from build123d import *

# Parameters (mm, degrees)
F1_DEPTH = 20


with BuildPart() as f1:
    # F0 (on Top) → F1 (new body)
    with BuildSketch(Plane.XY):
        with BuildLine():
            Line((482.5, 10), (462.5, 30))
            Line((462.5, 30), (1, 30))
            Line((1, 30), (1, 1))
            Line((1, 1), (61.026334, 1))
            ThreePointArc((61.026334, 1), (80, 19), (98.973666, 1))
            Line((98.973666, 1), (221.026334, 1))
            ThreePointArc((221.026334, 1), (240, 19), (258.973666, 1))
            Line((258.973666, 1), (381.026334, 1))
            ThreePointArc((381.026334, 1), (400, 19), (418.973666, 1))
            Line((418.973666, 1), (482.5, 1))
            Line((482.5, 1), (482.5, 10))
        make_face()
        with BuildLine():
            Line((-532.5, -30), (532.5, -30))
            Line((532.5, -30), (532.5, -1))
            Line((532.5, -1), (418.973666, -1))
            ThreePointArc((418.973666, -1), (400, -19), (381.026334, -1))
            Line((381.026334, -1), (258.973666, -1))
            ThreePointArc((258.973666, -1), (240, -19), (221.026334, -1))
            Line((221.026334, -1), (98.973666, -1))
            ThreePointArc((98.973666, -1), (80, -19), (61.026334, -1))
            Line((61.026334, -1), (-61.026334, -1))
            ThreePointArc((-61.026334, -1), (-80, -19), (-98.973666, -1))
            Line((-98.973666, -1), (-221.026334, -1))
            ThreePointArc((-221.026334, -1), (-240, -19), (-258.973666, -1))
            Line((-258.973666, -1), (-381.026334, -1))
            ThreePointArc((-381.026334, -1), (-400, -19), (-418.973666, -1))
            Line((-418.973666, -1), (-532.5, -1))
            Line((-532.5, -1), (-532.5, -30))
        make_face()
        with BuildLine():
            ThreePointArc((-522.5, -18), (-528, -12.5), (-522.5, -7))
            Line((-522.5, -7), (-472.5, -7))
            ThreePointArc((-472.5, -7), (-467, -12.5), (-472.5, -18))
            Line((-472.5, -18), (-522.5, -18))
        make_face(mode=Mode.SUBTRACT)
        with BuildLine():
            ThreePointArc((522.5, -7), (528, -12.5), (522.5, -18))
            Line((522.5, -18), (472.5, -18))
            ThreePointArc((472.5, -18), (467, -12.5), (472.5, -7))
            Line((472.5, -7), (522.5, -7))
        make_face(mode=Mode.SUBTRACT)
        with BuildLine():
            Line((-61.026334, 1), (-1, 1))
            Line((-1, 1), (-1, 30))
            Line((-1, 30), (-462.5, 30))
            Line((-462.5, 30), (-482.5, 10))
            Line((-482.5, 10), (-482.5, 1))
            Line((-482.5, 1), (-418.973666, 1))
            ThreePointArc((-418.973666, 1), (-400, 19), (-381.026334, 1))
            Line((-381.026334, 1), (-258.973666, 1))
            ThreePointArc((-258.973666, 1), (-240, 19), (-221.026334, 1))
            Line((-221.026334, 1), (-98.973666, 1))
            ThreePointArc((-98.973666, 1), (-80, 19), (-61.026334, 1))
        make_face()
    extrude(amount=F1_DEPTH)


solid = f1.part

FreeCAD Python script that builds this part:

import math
import FreeCAD as App
import Part
import Sketcher

V = App.Vector

doc = App.newDocument("Part")
body = doc.addObject("PartDesign::Body", "Body")
body.AllowCompound = True

# Sketch on XY plane
sketch1 = body.newObject("Sketcher::SketchObject", "Sketch")
sketch1.AttachmentSupport = (doc.getObject("XY_Plane"), [""])
sketch1.MapMode = "FlatFace"
sketch1.addGeometry(Part.LineSegment(V(482, 10, 0), V(462, 30, 0)), False)
sketch1.addGeometry(Part.LineSegment(V(462, 30, 0), V(1, 30, 0)), False)
sketch1.addGeometry(Part.LineSegment(V(1, 30, 0), V(1, 1, 0)), False)
sketch1.addGeometry(Part.LineSegment(V(1, 1, 0), V(61, 1, 0)), False)
sketch1.addGeometry(Part.ArcOfCircle(Part.Circle(V(80, 0, 0), V(0, 0, 1), 19), math.radians(3), math.radians(177)), False)
sketch1.addGeometry(Part.LineSegment(V(99, 1, 0), V(221, 1, 0)), False)
sketch1.addGeometry(Part.ArcOfCircle(Part.Circle(V(240, 0, 0), V(0, 0, 1), 19), math.radians(3), math.radians(177)), False)
sketch1.addGeometry(Part.LineSegment(V(259, 1, 0), V(381, 1, 0)), False)
sketch1.addGeometry(Part.ArcOfCircle(Part.Circle(V(400, 0, 0), V(0, 0, 1), 19), math.radians(3), math.radians(177)), False)
sketch1.addGeometry(Part.LineSegment(V(419, 1, 0), V(482, 1, 0)), False)
sketch1.addGeometry(Part.LineSegment(V(482, 1, 0), V(482, 10, 0)), False)
sketch1.addGeometry(Part.LineSegment(V(-532, -30, 0), V(532, -30, 0)), False)
sketch1.addGeometry(Part.LineSegment(V(532, -30, 0), V(532, -1, 0)), False)
sketch1.addGeometry(Part.LineSegment(V(532, -1, 0), V(419, -1, 0)), False)
sketch1.addGeometry(Part.ArcOfCircle(Part.Circle(V(400, 0, 0), V(0, 0, 1), 19), math.radians(-177), math.radians(-3)), False)
sketch1.addGeometry(Part.LineSegment(V(381, -1, 0), V(259, -1, 0)), False)
sketch1.addGeometry(Part.ArcOfCircle(Part.Circle(V(240, 0, 0), V(0, 0, 1), 19), math.radians(-177), math.radians(-3)), False)
sketch1.addGeometry(Part.LineSegment(V(221, -1, 0), V(99, -1, 0)), False)
sketch1.addGeometry(Part.ArcOfCircle(Part.Circle(V(80, 0, 0), V(0, 0, 1), 19), math.radians(-177), math.radians(-3)), False)
sketch1.addGeometry(Part.LineSegment(V(61, -1, 0), V(-61, -1, 0)), False)
sketch1.addGeometry(Part.ArcOfCircle(Part.Circle(V(-80, 0, 0), V(0, 0, 1), 19), math.radians(-177), math.radians(-3)), False)
sketch1.addGeometry(Part.LineSegment(V(-99, -1, 0), V(-221, -1, 0)), False)
sketch1.addGeometry(Part.ArcOfCircle(Part.Circle(V(-240, 0, 0), V(0, 0, 1), 19), math.radians(-177), math.radians(-3)), False)
sketch1.addGeometry(Part.LineSegment(V(-259, -1, 0), V(-381, -1, 0)), False)
sketch1.addGeometry(Part.ArcOfCircle(Part.Circle(V(-400, 0, 0), V(0, 0, 1), 19), math.radians(-177), math.radians(-3)), False)
sketch1.addGeometry(Part.LineSegment(V(-419, -1, 0), V(-532, -1, 0)), False)
sketch1.addGeometry(Part.LineSegment(V(-532, -1, 0), V(-532, -30, 0)), False)
sketch1.addGeometry(Part.LineSegment(V(-472, -18, 0), V(-522, -18, 0)), False)
sketch1.addGeometry(Part.ArcOfCircle(Part.Circle(V(-522, -12, 0), V(0, 0, 1), 6), math.radians(90), math.radians(270)), False)
sketch1.addGeometry(Part.LineSegment(V(-522, -7, 0), V(-472, -7, 0)), False)
sketch1.addGeometry(Part.ArcOfCircle(Part.Circle(V(-472, -12, 0), V(0, 0, 1), 6), math.radians(-90), math.radians(90)), False)
sketch1.addGeometry(Part.LineSegment(V(472, -7, 0), V(522, -7, 0)), False)
sketch1.addGeometry(Part.ArcOfCircle(Part.Circle(V(522, -12, 0), V(0, 0, 1), 6), math.radians(-90), math.radians(90)), False)
sketch1.addGeometry(Part.LineSegment(V(522, -18, 0), V(472, -18, 0)), False)
sketch1.addGeometry(Part.ArcOfCircle(Part.Circle(V(472, -12, 0), V(0, 0, 1), 6), math.radians(90), math.radians(270)), False)
sketch1.addGeometry(Part.LineSegment(V(-61, 1, 0), V(-1, 1, 0)), False)
sketch1.addGeometry(Part.LineSegment(V(-1, 1, 0), V(-1, 30, 0)), False)
sketch1.addGeometry(Part.LineSegment(V(-1, 30, 0), V(-462, 30, 0)), False)
sketch1.addGeometry(Part.LineSegment(V(-462, 30, 0), V(-482, 10, 0)), False)
sketch1.addGeometry(Part.LineSegment(V(-482, 10, 0), V(-482, 1, 0)), False)
sketch1.addGeometry(Part.LineSegment(V(-482, 1, 0), V(-419, 1, 0)), False)
sketch1.addGeometry(Part.ArcOfCircle(Part.Circle(V(-400, 0, 0), V(0, 0, 1), 19), math.radians(3), math.radians(177)), False)
sketch1.addGeometry(Part.LineSegment(V(-381, 1, 0), V(-259, 1, 0)), False)
sketch1.addGeometry(Part.ArcOfCircle(Part.Circle(V(-240, 0, 0), V(0, 0, 1), 19), math.radians(3), math.radians(177)), False)
sketch1.addGeometry(Part.LineSegment(V(-221, 1, 0), V(-99, 1, 0)), False)
sketch1.addGeometry(Part.ArcOfCircle(Part.Circle(V(-80, 0, 0), V(0, 0, 1), 19), math.radians(3), math.radians(177)), False)
sketch1.addConstraint(Sketcher.Constraint("Coincident", 0, 2, 1, 1))
sketch1.addConstraint(Sketcher.Constraint("Coincident", 1, 2, 2, 1))
sketch1.addConstraint(Sketcher.Constraint("Coincident", 2, 2, 3, 1))
sketch1.addConstraint(Sketcher.Constraint("Coincident", 3, 2, 4, 2))
sketch1.addConstraint(Sketcher.Constraint("Coincident", 4, 1, 5, 1))
sketch1.addConstraint(Sketcher.Constraint("Coincident", 5, 2, 6, 2))
sketch1.addConstraint(Sketcher.Constraint("Coincident", 6, 1, 7, 1))
sketch1.addConstraint(Sketcher.Constraint("Coincident", 7, 2, 8, 2))
sketch1.addConstraint(Sketcher.Constraint("Coincident", 8, 1, 9, 1))
sketch1.addConstraint(Sketcher.Constraint("Coincident", 9, 2, 10, 1))
sketch1.addConstraint(Sketcher.Constraint("Coincident", 10, 2, 0, 1))
sketch1.addConstraint(Sketcher.Constraint("Coincident", 11, 2, 12, 1))
sketch1.addConstraint(Sketcher.Constraint("Coincident", 12, 2, 13, 1))
sketch1.addConstraint(Sketcher.Constraint("Coincident", 13, 2, 14, 2))
sketch1.addConstraint(Sketcher.Constraint("Coincident", 14, 1, 15, 1))
sketch1.addConstraint(Sketcher.Constraint("Coincident", 15, 2, 16, 2))
sketch1.addConstraint(Sketcher.Constraint("Coincident", 16, 1, 17, 1))
sketch1.addConstraint(Sketcher.Constraint("Coincident", 17, 2, 18, 2))
sketch1.addConstraint(Sketcher.Constraint("Coincident", 18, 1, 19, 1))
sketch1.addConstraint(Sketcher.Constraint("Coincident", 19, 2, 20, 2))
sketch1.addConstraint(Sketcher.Constraint("Coincident", 20, 1, 21, 1))
sketch1.addConstraint(Sketcher.Constraint("Coincident", 21, 2, 22, 2))
sketch1.addConstraint(Sketcher.Constraint("Coincident", 22, 1, 23, 1))
sketch1.addConstraint(Sketcher.Constraint("Coincident", 23, 2, 24, 2))
sketch1.addConstraint(Sketcher.Constraint("Coincident", 24, 1, 25, 1))
sketch1.addConstraint(Sketcher.Constraint("Coincident", 25, 2, 26, 1))
sketch1.addConstraint(Sketcher.Constraint("Coincident", 26, 2, 11, 1))
sketch1.addConstraint(Sketcher.Constraint("Tangent", 27, 2, 28, 2))
sketch1.addConstraint(Sketcher.Constraint("Tangent", 28, 1, 29, 1))
sketch1.addConstraint(Sketcher.Constraint("Tangent", 29, 2, 30, 2))
sketch1.addConstraint(Sketcher.Constraint("Tangent", 30, 1, 27, 1))
sketch1.addConstraint(Sketcher.Constraint("Tangent", 31, 2, 32, 2))
sketch1.addConstraint(Sketcher.Constraint("Tangent", 32, 1, 33, 1))
sketch1.addConstraint(Sketcher.Constraint("Tangent", 33, 2, 34, 2))
sketch1.addConstraint(Sketcher.Constraint("Tangent", 34, 1, 31, 1))
sketch1.addConstraint(Sketcher.Constraint("Coincident", 35, 2, 36, 1))
sketch1.addConstraint(Sketcher.Constraint("Coincident", 36, 2, 37, 1))
sketch1.addConstraint(Sketcher.Constraint("Coincident", 37, 2, 38, 1))
sketch1.addConstraint(Sketcher.Constraint("Coincident", 38, 2, 39, 1))
sketch1.addConstraint(Sketcher.Constraint("Coincident", 39, 2, 40, 1))
sketch1.addConstraint(Sketcher.Constraint("Coincident", 40, 2, 41, 2))
sketch1.addConstraint(Sketcher.Constraint("Coincident", 41, 1, 42, 1))
sketch1.addConstraint(Sketcher.Constraint("Coincident", 42, 2, 43, 2))
sketch1.addConstraint(Sketcher.Constraint("Coincident", 43, 1, 44, 1))
sketch1.addConstraint(Sketcher.Constraint("Coincident", 44, 2, 45, 2))
sketch1.addConstraint(Sketcher.Constraint("Coincident", 45, 1, 35, 1))
sketch1.addConstraint(Sketcher.Constraint("Horizontal", 1))
sketch1.addConstraint(Sketcher.Constraint("Vertical", 2))
sketch1.addConstraint(Sketcher.Constraint("Horizontal", 3))
sketch1.addConstraint(Sketcher.Constraint("Horizontal", 5))
sketch1.addConstraint(Sketcher.Constraint("Horizontal", 7))
sketch1.addConstraint(Sketcher.Constraint("Horizontal", 9))
sketch1.addConstraint(Sketcher.Constraint("Vertical", 10))
sketch1.addConstraint(Sketcher.Constraint("Horizontal", 11))
sketch1.addConstraint(Sketcher.Constraint("Vertical", 12))
sketch1.addConstraint(Sketcher.Constraint("Horizontal", 13))
sketch1.addConstraint(Sketcher.Constraint("Horizontal", 15))
sketch1.addConstraint(Sketcher.Constraint("Horizontal", 17))
sketch1.addConstraint(Sketcher.Constraint("Horizontal", 19))
sketch1.addConstraint(Sketcher.Constraint("Horizontal", 21))
sketch1.addConstraint(Sketcher.Constraint("Horizontal", 23))
sketch1.addConstraint(Sketcher.Constraint("Horizontal", 25))
sketch1.addConstraint(Sketcher.Constraint("Vertical", 26))
sketch1.addConstraint(Sketcher.Constraint("Horizontal", 27))
sketch1.addConstraint(Sketcher.Constraint("Horizontal", 29))
sketch1.addConstraint(Sketcher.Constraint("Horizontal", 31))
sketch1.addConstraint(Sketcher.Constraint("Horizontal", 33))
sketch1.addConstraint(Sketcher.Constraint("Horizontal", 35))
sketch1.addConstraint(Sketcher.Constraint("Vertical", 36))
sketch1.addConstraint(Sketcher.Constraint("Horizontal", 37))
sketch1.addConstraint(Sketcher.Constraint("Vertical", 39))
sketch1.addConstraint(Sketcher.Constraint("Horizontal", 40))
sketch1.addConstraint(Sketcher.Constraint("Horizontal", 42))
sketch1.addConstraint(Sketcher.Constraint("Horizontal", 44))
sketch1.addConstraint(Sketcher.Constraint("Coincident", 14, 3, 8, 3))
sketch1.addConstraint(Sketcher.Constraint("Coincident", 16, 3, 6, 3))
sketch1.addConstraint(Sketcher.Constraint("Coincident", 18, 3, 4, 3))
sketch1.addConstraint(Sketcher.Constraint("Coincident", 41, 3, 24, 3))
sketch1.addConstraint(Sketcher.Constraint("Coincident", 43, 3, 22, 3))
sketch1.addConstraint(Sketcher.Constraint("Coincident", 45, 3, 20, 3))
sketch1.addConstraint(Sketcher.Constraint("Equal", 4, 6))
sketch1.addConstraint(Sketcher.Constraint("Equal", 6, 8))
sketch1.addConstraint(Sketcher.Constraint("Equal", 8, 14))
sketch1.addConstraint(Sketcher.Constraint("Equal", 14, 16))
sketch1.addConstraint(Sketcher.Constraint("Equal", 16, 18))
sketch1.addConstraint(Sketcher.Constraint("Equal", 18, 20))
sketch1.addConstraint(Sketcher.Constraint("Equal", 20, 22))
sketch1.addConstraint(Sketcher.Constraint("Equal", 22, 24))
sketch1.addConstraint(Sketcher.Constraint("Equal", 30, 32))
sketch1.addConstraint(Sketcher.Constraint("Equal", 24, 41))
sketch1.addConstraint(Sketcher.Constraint("Equal", 41, 43))
sketch1.addConstraint(Sketcher.Constraint("Equal", 43, 45))
sketch1.addConstraint(Sketcher.Constraint("Symmetric", 4, 3, 20, 3, -1, 1))
sketch1.addConstraint(Sketcher.Constraint("Symmetric", 6, 3, 22, 3, -1, 1))
sketch1.addConstraint(Sketcher.Constraint("Symmetric", 8, 3, 24, 3, -1, 1))
sketch1.addConstraint(Sketcher.Constraint("Symmetric", 28, 3, 32, 3, -2))
sketch1.addConstraint(Sketcher.Constraint("Symmetric", 17, 2, 20, 1, -2))
sketch1.addConstraint(Sketcher.Constraint("Symmetric", 15, 2, 22, 1, -2))
sketch1.addConstraint(Sketcher.Constraint("Symmetric", 13, 2, 24, 1, -2))
sketch1.addConstraint(Sketcher.Constraint("Symmetric", 2, 2, 35, 2, -2))
sketch1.addConstraint(Sketcher.Constraint("Symmetric", 0, 2, 37, 2, -2))
sketch1.addConstraint(Sketcher.Constraint("Symmetric", 10, 2, 38, 2, -2))
sketch1.addConstraint(Sketcher.Constraint("Perpendicular", 0, 38))
sketch1.addConstraint(Sketcher.Constraint("Horizontal", 3, 2, 4, 1))
sketch1.addConstraint(Sketcher.Constraint("Horizontal", 5, 2, 6, 1))
sketch1.addConstraint(Sketcher.Constraint("Horizontal", 7, 2, 8, 1))
sketch1.addConstraint(Sketcher.Constraint("Horizontal", 13, 2, 14, 1))
sketch1.addConstraint(Sketcher.Constraint("Horizontal", 15, 2, 16, 1))
sketch1.addConstraint(Sketcher.Constraint("Horizontal", 17, 2, 18, 1))
sketch1.addConstraint(Sketcher.Constraint("Horizontal", 35, 2, 39, 2))
sketch1.addConstraint(Sketcher.Constraint("Horizontal", 40, 2, 41, 1))
sketch1.addConstraint(Sketcher.Constraint("Horizontal", 42, 2, 43, 1))
sketch1.addConstraint(Sketcher.Constraint("Vertical", 8, 1, 13, 2))
sketch1.addConstraint(Sketcher.Constraint("Equal", 5, 7))
sketch1.addConstraint(Sketcher.Constraint("Equal", 17, 19))
sketch1.addConstraint(Sketcher.Constraint("Equal", 13, 25))
sketch1.addConstraint(Sketcher.Constraint("Equal", 29, 31))
sketch1.addConstraint(Sketcher.Constraint("Equal", 2, 12))
sketch1.addConstraint(Sketcher.Constraint("Radius", 4, 19.0))
sketch1.addConstraint(Sketcher.Constraint("Radius", 28, 5.5))
sketch1.addConstraint(Sketcher.Constraint("DistanceX", 11, 1, 11, 2, 1065.0))
sketch1.addConstraint(Sketcher.Constraint("DistanceX", 27, 2, 27, 1, 50.0))
sketch1.addConstraint(Sketcher.Constraint("DistanceY", 2, 2, 2, 1, 29.0))
sketch1.addConstraint(Sketcher.Constraint("DistanceY", 10, 1, 10, 2, 9.0))
sketch1.addConstraint(Sketcher.Constraint("DistanceX", 1, 2, 1, 1, 461.5))
sketch1.addConstraint(Sketcher.Constraint("DistanceX", -1, 1, 4, 3, 80.0))
sketch1.addConstraint(Sketcher.Constraint("DistanceY", -1, 1, 0, 2, 30.0))
sketch1.addConstraint(Sketcher.Constraint("DistanceX", -1, 1, 1, 2, 1.0))
sketch1.addConstraint(Sketcher.Constraint("DistanceY", 27, 2, -1, 1, 18.0))
sketch1.addConstraint(Sketcher.Constraint("DistanceX", 28, 3, -1, 1, 522.5))
pad1 = body.newObject("PartDesign::Pad", "Pad")
pad1.Profile = sketch1
pad1.Length = 20

doc.recompute()
